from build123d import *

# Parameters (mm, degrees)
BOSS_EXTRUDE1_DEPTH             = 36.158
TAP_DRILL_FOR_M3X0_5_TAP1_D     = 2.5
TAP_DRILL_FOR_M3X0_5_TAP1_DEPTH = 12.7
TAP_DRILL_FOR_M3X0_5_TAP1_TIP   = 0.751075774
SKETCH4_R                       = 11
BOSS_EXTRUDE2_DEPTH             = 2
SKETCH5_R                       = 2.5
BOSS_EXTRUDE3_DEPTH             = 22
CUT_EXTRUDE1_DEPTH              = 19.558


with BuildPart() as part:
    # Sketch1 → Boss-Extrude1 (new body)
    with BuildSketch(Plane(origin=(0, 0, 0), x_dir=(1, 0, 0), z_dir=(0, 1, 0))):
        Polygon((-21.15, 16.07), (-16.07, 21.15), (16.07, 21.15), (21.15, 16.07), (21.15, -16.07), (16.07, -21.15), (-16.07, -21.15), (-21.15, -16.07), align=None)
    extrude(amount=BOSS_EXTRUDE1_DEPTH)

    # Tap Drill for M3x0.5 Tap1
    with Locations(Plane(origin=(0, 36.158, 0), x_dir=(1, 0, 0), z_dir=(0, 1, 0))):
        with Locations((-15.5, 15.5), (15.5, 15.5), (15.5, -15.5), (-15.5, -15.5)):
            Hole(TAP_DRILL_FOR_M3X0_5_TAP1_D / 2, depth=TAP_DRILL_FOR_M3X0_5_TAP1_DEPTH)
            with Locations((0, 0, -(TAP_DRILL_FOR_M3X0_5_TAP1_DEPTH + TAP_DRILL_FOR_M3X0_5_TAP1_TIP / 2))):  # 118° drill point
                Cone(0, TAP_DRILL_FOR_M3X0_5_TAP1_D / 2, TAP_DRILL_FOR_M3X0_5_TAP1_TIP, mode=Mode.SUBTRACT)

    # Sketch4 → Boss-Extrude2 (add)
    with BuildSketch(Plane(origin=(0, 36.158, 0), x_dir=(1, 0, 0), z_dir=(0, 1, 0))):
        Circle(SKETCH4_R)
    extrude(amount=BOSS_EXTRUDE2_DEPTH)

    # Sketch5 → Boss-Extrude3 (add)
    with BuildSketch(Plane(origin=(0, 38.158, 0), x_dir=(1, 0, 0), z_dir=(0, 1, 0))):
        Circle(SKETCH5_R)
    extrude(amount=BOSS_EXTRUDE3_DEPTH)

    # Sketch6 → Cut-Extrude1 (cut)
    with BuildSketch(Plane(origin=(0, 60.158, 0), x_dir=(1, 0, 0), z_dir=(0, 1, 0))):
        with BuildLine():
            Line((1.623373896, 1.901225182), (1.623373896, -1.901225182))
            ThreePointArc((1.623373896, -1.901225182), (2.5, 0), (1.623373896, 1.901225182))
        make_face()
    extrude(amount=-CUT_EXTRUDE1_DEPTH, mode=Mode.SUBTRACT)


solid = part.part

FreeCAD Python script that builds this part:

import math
import FreeCAD as App
import Part
import Sketcher

V = App.Vector


def add_polygon(sketch, points):
    """Adds a closed chain of lines whose ends are joined by coincident constraints."""
    first, n = sketch.GeometryCount, len(points)
    for a, b in zip(points, points[1:] + points[:1]):
        sketch.addGeometry(Part.LineSegment(App.Vector(*a, 0), App.Vector(*b, 0)), False)
    for i in range(n):
        sketch.addConstraint(Sketcher.Constraint("Coincident", first + i, 2, first + (i + 1) % n, 1))

doc = App.newDocument("Part")
body = doc.addObject("PartDesign::Body", "Body")

# Sketch on XZ plane
sketch1 = doc.addObject("Sketcher::SketchObject", "Sketch")
body.addObject(sketch1)
sketch1.AttachmentSupport = (doc.XZ_Plane, [""])
sketch1.MapMode = "FlatFace"
add_polygon(sketch1, [(-16, -21), (-21, -16), (-21, 16), (-16, 21), (16, 21), (21, 16), (21, -16), (16, -21)])  # lines 0-7
sketch1.addConstraint([
    Sketcher.Constraint("Vertical", 1),
    Sketcher.Constraint("Horizontal", 3),
    Sketcher.Constraint("Vertical", 5),
    Sketcher.Constraint("Horizontal", 7),
    Sketcher.Constraint("Symmetric", 0, 2, 4, 2, -1, 1),
    Sketcher.Constraint("Symmetric", 2, 2, 6, 2, -1, 1),
    Sketcher.Constraint("Perpendicular", 0, 2),
    Sketcher.Constraint("Perpendicular", 2, 4),
    Sketcher.Constraint("Perpendicular", 4, 6),
    Sketcher.Constraint("Horizontal", 1, 2, 4, 2),
    Sketcher.Constraint("Vertical", 3, 2, 6, 2),
    Sketcher.Constraint("Equal", 7, 1),
    Sketcher.Constraint("DistanceX", 3, 1, 3, 2, 32.14),
    Sketcher.Constraint("DistanceX", 1, 2, 4, 2, 42.3),
])
pad1 = doc.addObject("PartDesign::Pad", "Pad")
body.addObject(pad1)
pad1.Profile = sketch1
pad1.Length = 36.158
pad1.Reversed = True

# Sketch on XZ plane
sketch2 = doc.addObject("Sketcher::SketchObject", "Sketch001")
body.addObject(sketch2)
sketch2.AttachmentSupport = (doc.XZ_Plane, [""])
sketch2.MapMode = "FlatFace"
sketch2.AttachmentOffset = App.Placement(V(0, 0, -36.158), App.Rotation())
sketch2.addGeometry([
    Part.Circle(V(-15.5, -15.5, 0), V(0, 0, 1), 1.2),
    Part.Circle(V(15.5, -15.5, 0), V(0, 0, 1), 1.2),
    Part.Circle(V(15.5, 15.5, 0), V(0, 0, 1), 1.2),
    Part.Circle(V(-15.5, 15.5, 0), V(0, 0, 1), 1.2),
], False)
sketch2.addConstraint([
    Sketcher.Constraint("Equal", 0, 1),
    Sketcher.Constraint("Equal", 1, 2),
    Sketcher.Constraint("Equal", 2, 3),
    Sketcher.Constraint("Symmetric", 0, 3, 2, 3, -1, 1),
    Sketcher.Constraint("Symmetric", 1, 3, 3, 3, -1, 1),
    Sketcher.Constraint("Symmetric", 0, 3, 1, 3, -2),
    Sketcher.Constraint("Diameter", 0, 2.5),
    Sketcher.Constraint("DistanceX", 0, 3, 1, 3, 31.0),
    Sketcher.Constraint("DistanceY", 1, 3, 2, 3, 31.0),
])
doc.recompute()
hole = doc.addObject("PartDesign::Hole", "Hole")
body.addObject(hole)
hole.Profile = sketch2
hole.ThreadType = "None"
hole.Diameter = 2.5
hole.DepthType = "Dimension"
hole.Depth = 12.7
hole.DrillPoint = "Angled"
hole.DrillPointAngle = 118
hole.Reversed = True

# Sketch on XZ plane
sketch3 = doc.addObject("Sketcher::SketchObject", "Sketch002")
body.addObject(sketch3)
sketch3.AttachmentSupport = (doc.XZ_Plane, [""])
sketch3.MapMode = "FlatFace"
sketch3.AttachmentOffset = App.Placement(V(0, 0, -36.158), App.Rotation())
sketch3.addGeometry(Part.Circle(V(0, 0, 0), V(0, 0, 1), 11), False)
sketch3.addConstraint([
    Sketcher.Constraint("Coincident", 0, 3, -1, 1),
    Sketcher.Constraint("Diameter", 0, 22.0),
])
pad2 = doc.addObject("PartDesign::Pad", "Pad001")
body.addObject(pad2)
pad2.Profile = sketch3
pad2.Length = 2
pad2.Reversed = True

# Sketch on XZ plane
sketch4 = doc.addObject("Sketcher::SketchObject", "Sketch003")
body.addObject(sketch4)
sketch4.AttachmentSupport = (doc.XZ_Plane, [""])
sketch4.MapMode = "FlatFace"
sketch4.AttachmentOffset = App.Placement(V(0, 0, -38.158), App.Rotation())
sketch4.addGeometry(Part.Circle(V(0, 0, 0), V(0, 0, 1), 2.5), False)
sketch4.addConstraint([
    Sketcher.Constraint("Coincident", 0, 3, -1, 1),
    Sketcher.Constraint("Diameter", 0, 5.0),
])
pad3 = doc.addObject("PartDesign::Pad", "Pad002")
body.addObject(pad3)
pad3.Profile = sketch4
pad3.Length = 22
pad3.Reversed = True

# Sketch on XZ plane
sketch5 = doc.addObject("Sketcher::SketchObject", "Sketch004")
body.addObject(sketch5)
sketch5.AttachmentSupport = (doc.XZ_Plane, [""])
sketch5.MapMode = "FlatFace"
sketch5.AttachmentOffset = App.Placement(V(0, 0, -60.158), App.Rotation())
sketch5.addGeometry([
    Part.LineSegment(V(1.6, -1.9, 0), V(1.6, 1.9, 0)),
    Part.ArcOfCircle(Part.Circle(V(0, 0, 0), V(0, 0, 1), 2.5), math.radians(-50), math.radians(50)),
], False)
sketch5.addConstraint([
    Sketcher.Constraint("Coincident", 0, 1, 1, 1),
    Sketcher.Constraint("Coincident", 1, 2, 0, 2),
    Sketcher.Constraint("Vertical", 0),
    Sketcher.Constraint("Coincident", 1, 3, -1, 1),
    Sketcher.Constraint("Radius", 1, 2.5),
    Sketcher.Constraint("DistanceY", 0, 1, 0, 2, 3.80245),
])
pocket1 = doc.addObject("PartDesign::Pocket", "Pocket")
body.addObject(pocket1)
pocket1.Profile = sketch5
pocket1.Length = 19.558
pocket1.Reversed = True

doc.recompute()
